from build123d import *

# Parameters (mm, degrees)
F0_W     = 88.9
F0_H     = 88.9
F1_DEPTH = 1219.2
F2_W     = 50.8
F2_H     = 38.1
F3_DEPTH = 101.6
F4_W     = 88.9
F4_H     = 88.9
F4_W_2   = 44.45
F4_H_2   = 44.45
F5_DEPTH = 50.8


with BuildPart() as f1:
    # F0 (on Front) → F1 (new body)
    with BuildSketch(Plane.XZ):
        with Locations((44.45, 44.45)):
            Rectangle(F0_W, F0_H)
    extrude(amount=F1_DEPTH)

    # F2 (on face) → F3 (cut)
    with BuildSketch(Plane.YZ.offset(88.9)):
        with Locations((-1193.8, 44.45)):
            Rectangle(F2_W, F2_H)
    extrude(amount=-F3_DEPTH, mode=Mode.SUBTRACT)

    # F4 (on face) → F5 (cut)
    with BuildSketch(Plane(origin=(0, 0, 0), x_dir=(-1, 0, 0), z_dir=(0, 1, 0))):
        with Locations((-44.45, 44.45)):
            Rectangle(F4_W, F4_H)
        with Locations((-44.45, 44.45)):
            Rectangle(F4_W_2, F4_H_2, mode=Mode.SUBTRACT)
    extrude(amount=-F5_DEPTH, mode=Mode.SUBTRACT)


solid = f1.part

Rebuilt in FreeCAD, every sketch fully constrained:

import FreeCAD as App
import Part
import Sketcher

V = App.Vector
Q = App.Units.Quantity


def add_polygon(sketch, points):
    """Adds a closed chain of lines whose ends are joined by coincident constraints."""
    first, n = sketch.GeometryCount, len(points)
    for a, b in zip(points, points[1:] + points[:1]):
        sketch.addGeometry(Part.LineSegment(App.Vector(*a, 0), App.Vector(*b, 0)), False)
    for i in range(n):
        sketch.addConstraint(Sketcher.Constraint("Coincident", first + i, 2, first + (i + 1) % n, 1))

doc = App.newDocument("Part")
body = doc.addObject("PartDesign::Body", "Body")

# Sketch on XZ plane
sketch1 = body.newObject("Sketcher::SketchObject", "Sketch")
sketch1.AttachmentSupport = (doc.getObject("XZ_Plane"), [""])
sketch1.MapMode = "FlatFace"
add_polygon(sketch1, [(0, 88.9), (0, 0), (88.9, 0), (88.9, 88.9)])  # lines 0-3
sketch1.addConstraint(Sketcher.Constraint("Vertical", 0))
sketch1.addConstraint(Sketcher.Constraint("Horizontal", 1))
sketch1.addConstraint(Sketcher.Constraint("Vertical", 2))
sketch1.addConstraint(Sketcher.Constraint("Horizontal", 3))
sketch1.addConstraint(Sketcher.Constraint("Coincident", 0, 2, -1, 1))
sketch1.addConstraint(Sketcher.Constraint("Equal", 3, 0))
sketch1.addConstraint(Sketcher.Constraint("DistanceX", 1, 1, 1, 2, Q("3.5 in")))
pad1 = body.newObject("PartDesign::Pad", "Pad")
pad1.Profile = sketch1
pad1.Length = Q("48 in")

# Sketch on YZ plane
sketch2 = body.newObject("Sketcher::SketchObject", "Sketch001")
sketch2.AttachmentSupport = (doc.getObject("YZ_Plane"), [""])
sketch2.MapMode = "FlatFace"
sketch2.AttachmentOffset = App.Placement(V(0, 0, 3.5 * 25.4), App.Rotation())
add_polygon(sketch2, [(-1219.2, 63.5), (-1219.2, 25.4), (-1168.4, 25.4), (-1168.4, 63.5)])  # lines 0-3
sketch2.addConstraint(Sketcher.Constraint("Vertical", 0))
sketch2.addConstraint(Sketcher.Constraint("Horizontal", 1))
sketch2.addConstraint(Sketcher.Constraint("Vertical", 2))
sketch2.addConstraint(Sketcher.Constraint("Horizontal", 3))
sketch2.addConstraint(Sketcher.Constraint("DistanceX", 1, 1, 1, 2, Q("2 in")))
sketch2.addConstraint(Sketcher.Constraint("DistanceY", 0, 2, 0, 1, Q("1.5 in")))
sketch2.addConstraint(Sketcher.Constraint("DistanceX", 0, 2, -1, 1, Q("48 in")))
sketch2.addConstraint(Sketcher.Constraint("DistanceY", -1, 1, 0, 2, Q("1 in")))
pocket1 = body.newObject("PartDesign::Pocket", "Pocket")
pocket1.Profile = sketch2
pocket1.Length = Q("4 in")

# Sketch on XZ plane
sketch3 = body.newObject("Sketcher::SketchObject", "Sketch002")
sketch3.AttachmentSupport = (doc.getObject("XZ_Plane"), [""])
sketch3.MapMode = "FlatFace"
add_polygon(sketch3, [(88.9, 88.9), (88.9, 0), (0, 0), (0, 88.9)])  # lines 0-3
add_polygon(sketch3, [(22.225, 22.225), (66.675, 22.225), (66.675, 66.675), (22.225, 66.675)])  # lines 4-7
sketch3.addConstraint(Sketcher.Constraint("Vertical", 0))
sketch3.addConstraint(Sketcher.Constraint("Horizontal", 1))
sketch3.addConstraint(Sketcher.Constraint("Vertical", 2))
sketch3.addConstraint(Sketcher.Constraint("Horizontal", 3))
sketch3.addConstraint(Sketcher.Constraint("Horizontal", 4))
sketch3.addConstraint(Sketcher.Constraint("Vertical", 5))
sketch3.addConstraint(Sketcher.Constraint("Horizontal", 6))
sketch3.addConstraint(Sketcher.Constraint("Vertical", 7))
sketch3.addConstraint(Sketcher.Constraint("Coincident", 1, 2, -1, 1))
sketch3.addConstraint(Sketcher.Constraint("Equal", 3, 0))
sketch3.addConstraint(Sketcher.Constraint("Equal", 6, 5))
sketch3.addConstraint(Sketcher.Constraint("DistanceX", 1, 2, 1, 1, Q("3.5 in")))
sketch3.addConstraint(Sketcher.Constraint("DistanceX", 4, 1, 4, 2, Q("1.75 in")))
sketch3.addConstraint(Sketcher.Constraint("DistanceX", -1, 1, 4, 2, Q("2.625 in")))
sketch3.addConstraint(Sketcher.Constraint("DistanceY", -1, 1, 4, 2, Q("0.875 in")))
pocket2 = body.newObject("PartDesign::Pocket", "Pocket001")
pocket2.Profile = sketch3
pocket2.Length = Q("2 in")
pocket2.Reversed = True

doc.recompute()
